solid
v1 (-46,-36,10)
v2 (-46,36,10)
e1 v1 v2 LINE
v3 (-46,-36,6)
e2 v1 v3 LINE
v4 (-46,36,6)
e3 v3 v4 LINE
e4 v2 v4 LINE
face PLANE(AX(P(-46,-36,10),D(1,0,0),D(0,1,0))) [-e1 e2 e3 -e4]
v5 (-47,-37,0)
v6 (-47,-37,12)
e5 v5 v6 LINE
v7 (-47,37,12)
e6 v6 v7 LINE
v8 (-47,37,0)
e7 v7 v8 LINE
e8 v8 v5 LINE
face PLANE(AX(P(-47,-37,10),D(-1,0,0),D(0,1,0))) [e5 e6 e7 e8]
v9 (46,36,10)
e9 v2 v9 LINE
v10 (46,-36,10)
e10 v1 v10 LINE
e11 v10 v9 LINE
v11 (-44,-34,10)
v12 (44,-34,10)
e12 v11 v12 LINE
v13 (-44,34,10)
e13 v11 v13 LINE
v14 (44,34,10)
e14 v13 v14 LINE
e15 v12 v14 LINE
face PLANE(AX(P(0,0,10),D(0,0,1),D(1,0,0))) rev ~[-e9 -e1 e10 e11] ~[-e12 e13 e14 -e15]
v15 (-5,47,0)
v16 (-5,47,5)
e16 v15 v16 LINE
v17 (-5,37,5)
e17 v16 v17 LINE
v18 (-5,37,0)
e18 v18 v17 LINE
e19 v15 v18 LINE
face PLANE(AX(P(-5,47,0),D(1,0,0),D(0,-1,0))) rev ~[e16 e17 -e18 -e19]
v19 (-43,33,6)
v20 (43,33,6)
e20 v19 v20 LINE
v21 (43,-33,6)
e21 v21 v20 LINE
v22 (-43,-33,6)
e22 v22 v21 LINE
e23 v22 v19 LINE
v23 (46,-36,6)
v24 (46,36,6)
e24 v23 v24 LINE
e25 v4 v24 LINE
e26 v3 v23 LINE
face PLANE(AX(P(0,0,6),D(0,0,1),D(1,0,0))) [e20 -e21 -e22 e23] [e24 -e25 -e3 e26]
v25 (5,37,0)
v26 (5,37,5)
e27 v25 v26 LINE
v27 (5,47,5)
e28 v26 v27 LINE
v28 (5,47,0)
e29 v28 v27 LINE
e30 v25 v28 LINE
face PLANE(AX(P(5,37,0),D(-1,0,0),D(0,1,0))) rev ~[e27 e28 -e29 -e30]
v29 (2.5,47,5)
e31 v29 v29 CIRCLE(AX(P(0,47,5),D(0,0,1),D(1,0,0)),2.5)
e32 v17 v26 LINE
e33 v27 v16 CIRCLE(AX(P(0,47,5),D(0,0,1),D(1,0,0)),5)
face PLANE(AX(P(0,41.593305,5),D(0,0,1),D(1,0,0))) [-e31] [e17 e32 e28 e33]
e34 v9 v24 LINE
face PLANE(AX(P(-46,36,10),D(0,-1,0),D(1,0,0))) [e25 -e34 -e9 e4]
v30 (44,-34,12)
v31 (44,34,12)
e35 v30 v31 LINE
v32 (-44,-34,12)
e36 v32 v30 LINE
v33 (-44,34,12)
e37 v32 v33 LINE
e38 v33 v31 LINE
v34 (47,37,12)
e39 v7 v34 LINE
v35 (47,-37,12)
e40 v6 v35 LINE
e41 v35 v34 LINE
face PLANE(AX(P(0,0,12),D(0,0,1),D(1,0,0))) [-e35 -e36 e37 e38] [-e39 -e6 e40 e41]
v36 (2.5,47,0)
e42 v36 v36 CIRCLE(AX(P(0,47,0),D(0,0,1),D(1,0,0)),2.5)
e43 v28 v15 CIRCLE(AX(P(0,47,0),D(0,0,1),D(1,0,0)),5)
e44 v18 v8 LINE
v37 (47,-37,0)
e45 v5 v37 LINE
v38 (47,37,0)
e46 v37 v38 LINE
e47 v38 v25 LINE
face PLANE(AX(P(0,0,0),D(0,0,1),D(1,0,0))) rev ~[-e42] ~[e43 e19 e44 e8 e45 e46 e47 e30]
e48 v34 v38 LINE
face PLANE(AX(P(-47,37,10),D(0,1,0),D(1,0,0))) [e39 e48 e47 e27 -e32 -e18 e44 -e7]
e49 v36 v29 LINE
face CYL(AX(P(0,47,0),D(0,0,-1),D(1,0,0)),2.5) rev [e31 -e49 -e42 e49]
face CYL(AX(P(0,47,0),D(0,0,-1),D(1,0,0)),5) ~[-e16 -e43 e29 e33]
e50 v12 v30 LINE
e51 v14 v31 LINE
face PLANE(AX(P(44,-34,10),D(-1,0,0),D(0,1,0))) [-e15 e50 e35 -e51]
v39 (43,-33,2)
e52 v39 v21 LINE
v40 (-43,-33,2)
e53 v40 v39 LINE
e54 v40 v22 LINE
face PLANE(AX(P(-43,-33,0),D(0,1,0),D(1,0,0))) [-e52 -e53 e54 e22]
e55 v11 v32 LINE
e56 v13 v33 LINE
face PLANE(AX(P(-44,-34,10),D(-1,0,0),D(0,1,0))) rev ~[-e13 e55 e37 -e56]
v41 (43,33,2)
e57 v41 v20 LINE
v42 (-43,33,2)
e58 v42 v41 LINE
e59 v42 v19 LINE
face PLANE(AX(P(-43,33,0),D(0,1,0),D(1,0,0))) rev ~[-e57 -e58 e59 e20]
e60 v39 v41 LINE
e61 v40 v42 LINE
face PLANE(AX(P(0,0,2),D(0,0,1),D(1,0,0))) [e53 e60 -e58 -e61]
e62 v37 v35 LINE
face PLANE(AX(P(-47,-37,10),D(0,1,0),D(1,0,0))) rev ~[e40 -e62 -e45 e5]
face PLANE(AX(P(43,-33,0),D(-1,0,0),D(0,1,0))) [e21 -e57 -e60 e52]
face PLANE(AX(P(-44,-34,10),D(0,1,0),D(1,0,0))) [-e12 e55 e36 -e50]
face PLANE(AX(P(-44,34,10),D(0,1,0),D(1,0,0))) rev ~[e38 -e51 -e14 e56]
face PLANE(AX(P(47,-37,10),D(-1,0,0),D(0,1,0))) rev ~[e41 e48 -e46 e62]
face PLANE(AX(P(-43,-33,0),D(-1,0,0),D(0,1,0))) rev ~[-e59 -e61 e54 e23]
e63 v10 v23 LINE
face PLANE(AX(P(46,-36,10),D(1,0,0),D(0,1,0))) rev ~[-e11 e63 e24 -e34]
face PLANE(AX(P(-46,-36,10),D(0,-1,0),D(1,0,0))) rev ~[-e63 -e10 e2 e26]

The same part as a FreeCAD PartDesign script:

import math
import FreeCAD as App
import Part
import Sketcher
from FreeCAD import Vector


def add_polygon(sketch, points):
    """Adds a closed chain of lines whose ends are joined by coincident constraints."""
    first, n = sketch.GeometryCount, len(points)
    for a, b in zip(points, points[1:] + points[:1]):
        sketch.addGeometry(Part.LineSegment(App.Vector(*a, 0), App.Vector(*b, 0)), False)
    for i in range(n):
        sketch.addConstraint(Sketcher.Constraint("Coincident", first + i, 2, first + (i + 1) % n, 1))

doc = App.newDocument("Part")
body = doc.addObject("PartDesign::Body", "Body")

sketch1 = body.newObject("Sketcher::SketchObject", "Sketch")
sketch1.AttachmentSupport = (doc.getObject("XY_Plane"), [""])
sketch1.MapMode = "FlatFace"
add_polygon(sketch1, [(-43, 33), (-43, -33), (43, -33), (43, 33)])
sketch1.addConstraint(Sketcher.Constraint("Vertical", 0))
sketch1.addConstraint(Sketcher.Constraint("Horizontal", 1))
sketch1.addConstraint(Sketcher.Constraint("Vertical", 2))
sketch1.addConstraint(Sketcher.Constraint("Horizontal", 3))
sketch1.addConstraint(Sketcher.Constraint("Symmetric", 0, 2, 2, 2, -1, 1))
sketch1.addConstraint(Sketcher.Constraint("DistanceX", 1, 1, 1, 2, 86.0))
sketch1.addConstraint(Sketcher.Constraint("DistanceY", 0, 2, 0, 1, 66.0))
pad1 = body.newObject("PartDesign::Pad", "Pad")
pad1.Profile = sketch1
pad1.Length = 2

sketch2 = body.newObject("Sketcher::SketchObject", "Sketch001")
sketch2.AttachmentSupport = (doc.getObject("XY_Plane"), [""])
sketch2.MapMode = "FlatFace"
add_polygon(sketch2, [(47, -37), (47, 37), (-47, 37), (-47, -37)])
add_polygon(sketch2, [(43, -33), (-43, -33), (-43, 33), (43, 33)])
sketch2.addConstraint(Sketcher.Constraint("Vertical", 0))
sketch2.addConstraint(Sketcher.Constraint("Horizontal", 1))
sketch2.addConstraint(Sketcher.Constraint("Vertical", 2))
sketch2.addConstraint(Sketcher.Constraint("Horizontal", 3))
sketch2.addConstraint(Sketcher.Constraint("Horizontal", 4))
sketch2.addConstraint(Sketcher.Constraint("Vertical", 5))
sketch2.addConstraint(Sketcher.Constraint("Horizontal", 6))
sketch2.addConstraint(Sketcher.Constraint("Vertical", 7))
sketch2.addConstraint(Sketcher.Constraint("Symmetric", 0, 2, 2, 2, -1, 1))
sketch2.addConstraint(Sketcher.Constraint("Symmetric", 4, 2, 6, 2, -1, 1))
sketch2.addConstraint(Sketcher.Constraint("DistanceX", 1, 2, 1, 1, 94.0))
sketch2.addConstraint(Sketcher.Constraint("DistanceX", 4, 2, 4, 1, 86.0))
sketch2.addConstraint(Sketcher.Constraint("DistanceY", 0, 1, 0, 2, 74.0))
sketch2.addConstraint(Sketcher.Constraint("DistanceY", 5, 1, 5, 2, 66.0))
pad2 = body.newObject("PartDesign::Pad", "Pad001")
pad2.Profile = sketch2
pad2.Length = 10

sketch3 = body.newObject("Sketcher::SketchObject", "Sketch002")
sketch3.AttachmentSupport = (doc.getObject("XY_Plane"), [""])
sketch3.MapMode = "FlatFace"
sketch3.AttachmentOffset = App.Placement(Vector(0, 0, 10), App.Rotation())
add_polygon(sketch3, [(-46, 36), (-46, -36), (46, -36), (46, 36)])
add_polygon(sketch3, [(43, -33), (-43, -33), (-43, 33), (43, 33)])
sketch3.addConstraint(Sketcher.Constraint("Vertical", 0))
sketch3.addConstraint(Sketcher.Constraint("Horizontal", 1))
sketch3.addConstraint(Sketcher.Constraint("Vertical", 2))
sketch3.addConstraint(Sketcher.Constraint("Horizontal", 3))
sketch3.addConstraint(Sketcher.Constraint("Horizontal", 4))
sketch3.addConstraint(Sketcher.Constraint("Vertical", 5))
sketch3.addConstraint(Sketcher.Constraint("Horizontal", 6))
sketch3.addConstraint(Sketcher.Constraint("Vertical", 7))
sketch3.addConstraint(Sketcher.Constraint("Symmetric", 0, 2, 2, 2, -1, 1))
sketch3.addConstraint(Sketcher.Constraint("Symmetric", 4, 2, 6, 2, -1, 1))
sketch3.addConstraint(Sketcher.Constraint("DistanceX", 1, 1, 1, 2, 92.0))
sketch3.addConstraint(Sketcher.Constraint("DistanceX", 4, 2, 4, 1, 86.0))
sketch3.addConstraint(Sketcher.Constraint("DistanceY", 0, 2, 0, 1, 72.0))
sketch3.addConstraint(Sketcher.Constraint("DistanceY", 5, 1, 5, 2, 66.0))
pocket1 = body.newObject("PartDesign::Pocket", "Pocket")
pocket1.Profile = sketch3
pocket1.Length = 4

sketch4 = body.newObject("Sketcher::SketchObject", "Sketch003")
sketch4.AttachmentSupport = (doc.getObject("XY_Plane"), [""])
sketch4.MapMode = "FlatFace"
sketch4.AttachmentOffset = App.Placement(Vector(0, 0, 10), App.Rotation())
add_polygon(sketch4, [(-47, 37), (-47, -37), (47, -37), (47, 37)])
add_polygon(sketch4, [(44, -34), (-44, -34), (-44, 34), (44, 34)])
sketch4.addConstraint(Sketcher.Constraint("Vertical", 0))
sketch4.addConstraint(Sketcher.Constraint("Horizontal", 1))
sketch4.addConstraint(Sketcher.Constraint("Vertical", 2))
sketch4.addConstraint(Sketcher.Constraint("Horizontal", 3))
sketch4.addConstraint(Sketcher.Constraint("Horizontal", 4))
sketch4.addConstraint(Sketcher.Constraint("Vertical", 5))
sketch4.addConstraint(Sketcher.Constraint("Horizontal", 6))
sketch4.addConstraint(Sketcher.Constraint("Vertical", 7))
sketch4.addConstraint(Sketcher.Constraint("Symmetric", 0, 2, 2, 2, -1, 1))
sketch4.addConstraint(Sketcher.Constraint("Symmetric", 4, 2, 6, 2, -1, 1))
sketch4.addConstraint(Sketcher.Constraint("DistanceX", 1, 1, 1, 2, 94.0))
sketch4.addConstraint(Sketcher.Constraint("DistanceX", 4, 2, 4, 1, 88.0))
sketch4.addConstraint(Sketcher.Constraint("DistanceY", 0, 2, 0, 1, 74.0))
sketch4.addConstraint(Sketcher.Constraint("DistanceY", 5, 1, 5, 2, 68.0))
pad3 = body.newObject("PartDesign::Pad", "Pad002")
pad3.Profile = sketch4
pad3.Length = 2

sketch5 = body.newObject("Sketcher::SketchObject", "Sketch004")
sketch5.AttachmentSupport = (doc.getObject("XY_Plane"), [""])
sketch5.MapMode = "FlatFace"
sketch5.addGeometry(Part.LineSegment(Vector(-5, 37, 0), Vector(5, 37, 0)), False)
sketch5.addGeometry(Part.LineSegment(Vector(5, 37, 0), Vector(5, 47, 0)), False)
sketch5.addGeometry(Part.ArcOfCircle(Part.Circle(Vector(0, 47, 0), Vector(0, 0, 1), 5), math.radians(0), math.radians(180)), False)
sketch5.addGeometry(Part.LineSegment(Vector(-5, 47, 0), Vector(-5, 37, 0)), False)
sketch5.addGeometry(Part.Circle(Vector(0, 47, 0), Vector(0, 0, 1), 2.5), False)
sketch5.addConstraint(Sketcher.Constraint("Coincident", 0, 2, 1, 1))
sketch5.addConstraint(Sketcher.Constraint("Tangent", 1, 2, 2, 1))
sketch5.addConstraint(Sketcher.Constraint("Tangent", 2, 2, 3, 1))
sketch5.addConstraint(Sketcher.Constraint("Coincident", 3, 2, 0, 1))
sketch5.addConstraint(Sketcher.Constraint("Horizontal", 0))
sketch5.addConstraint(Sketcher.Constraint("Vertical", 1))
sketch5.addConstraint(Sketcher.Constraint("Vertical", 3))
sketch5.addConstraint(Sketcher.Constraint("Coincident", 4, 3, 2, 3))
sketch5.addConstraint(Sketcher.Constraint("PointOnObject", 2, 3, -2))
sketch5.addConstraint(Sketcher.Constraint("Equal", 0, 1))
sketch5.addConstraint(Sketcher.Constraint("Diameter", 4, 5.0))
sketch5.addConstraint(Sketcher.Constraint("Radius", 2, 5.0))
sketch5.addConstraint(Sketcher.Constraint("DistanceY", -1, 1, 2, 3, 47.0))
pad4 = body.newObject("PartDesign::Pad", "Pad003")
pad4.Profile = sketch5
pad4.Length = 5

doc.recompute()
